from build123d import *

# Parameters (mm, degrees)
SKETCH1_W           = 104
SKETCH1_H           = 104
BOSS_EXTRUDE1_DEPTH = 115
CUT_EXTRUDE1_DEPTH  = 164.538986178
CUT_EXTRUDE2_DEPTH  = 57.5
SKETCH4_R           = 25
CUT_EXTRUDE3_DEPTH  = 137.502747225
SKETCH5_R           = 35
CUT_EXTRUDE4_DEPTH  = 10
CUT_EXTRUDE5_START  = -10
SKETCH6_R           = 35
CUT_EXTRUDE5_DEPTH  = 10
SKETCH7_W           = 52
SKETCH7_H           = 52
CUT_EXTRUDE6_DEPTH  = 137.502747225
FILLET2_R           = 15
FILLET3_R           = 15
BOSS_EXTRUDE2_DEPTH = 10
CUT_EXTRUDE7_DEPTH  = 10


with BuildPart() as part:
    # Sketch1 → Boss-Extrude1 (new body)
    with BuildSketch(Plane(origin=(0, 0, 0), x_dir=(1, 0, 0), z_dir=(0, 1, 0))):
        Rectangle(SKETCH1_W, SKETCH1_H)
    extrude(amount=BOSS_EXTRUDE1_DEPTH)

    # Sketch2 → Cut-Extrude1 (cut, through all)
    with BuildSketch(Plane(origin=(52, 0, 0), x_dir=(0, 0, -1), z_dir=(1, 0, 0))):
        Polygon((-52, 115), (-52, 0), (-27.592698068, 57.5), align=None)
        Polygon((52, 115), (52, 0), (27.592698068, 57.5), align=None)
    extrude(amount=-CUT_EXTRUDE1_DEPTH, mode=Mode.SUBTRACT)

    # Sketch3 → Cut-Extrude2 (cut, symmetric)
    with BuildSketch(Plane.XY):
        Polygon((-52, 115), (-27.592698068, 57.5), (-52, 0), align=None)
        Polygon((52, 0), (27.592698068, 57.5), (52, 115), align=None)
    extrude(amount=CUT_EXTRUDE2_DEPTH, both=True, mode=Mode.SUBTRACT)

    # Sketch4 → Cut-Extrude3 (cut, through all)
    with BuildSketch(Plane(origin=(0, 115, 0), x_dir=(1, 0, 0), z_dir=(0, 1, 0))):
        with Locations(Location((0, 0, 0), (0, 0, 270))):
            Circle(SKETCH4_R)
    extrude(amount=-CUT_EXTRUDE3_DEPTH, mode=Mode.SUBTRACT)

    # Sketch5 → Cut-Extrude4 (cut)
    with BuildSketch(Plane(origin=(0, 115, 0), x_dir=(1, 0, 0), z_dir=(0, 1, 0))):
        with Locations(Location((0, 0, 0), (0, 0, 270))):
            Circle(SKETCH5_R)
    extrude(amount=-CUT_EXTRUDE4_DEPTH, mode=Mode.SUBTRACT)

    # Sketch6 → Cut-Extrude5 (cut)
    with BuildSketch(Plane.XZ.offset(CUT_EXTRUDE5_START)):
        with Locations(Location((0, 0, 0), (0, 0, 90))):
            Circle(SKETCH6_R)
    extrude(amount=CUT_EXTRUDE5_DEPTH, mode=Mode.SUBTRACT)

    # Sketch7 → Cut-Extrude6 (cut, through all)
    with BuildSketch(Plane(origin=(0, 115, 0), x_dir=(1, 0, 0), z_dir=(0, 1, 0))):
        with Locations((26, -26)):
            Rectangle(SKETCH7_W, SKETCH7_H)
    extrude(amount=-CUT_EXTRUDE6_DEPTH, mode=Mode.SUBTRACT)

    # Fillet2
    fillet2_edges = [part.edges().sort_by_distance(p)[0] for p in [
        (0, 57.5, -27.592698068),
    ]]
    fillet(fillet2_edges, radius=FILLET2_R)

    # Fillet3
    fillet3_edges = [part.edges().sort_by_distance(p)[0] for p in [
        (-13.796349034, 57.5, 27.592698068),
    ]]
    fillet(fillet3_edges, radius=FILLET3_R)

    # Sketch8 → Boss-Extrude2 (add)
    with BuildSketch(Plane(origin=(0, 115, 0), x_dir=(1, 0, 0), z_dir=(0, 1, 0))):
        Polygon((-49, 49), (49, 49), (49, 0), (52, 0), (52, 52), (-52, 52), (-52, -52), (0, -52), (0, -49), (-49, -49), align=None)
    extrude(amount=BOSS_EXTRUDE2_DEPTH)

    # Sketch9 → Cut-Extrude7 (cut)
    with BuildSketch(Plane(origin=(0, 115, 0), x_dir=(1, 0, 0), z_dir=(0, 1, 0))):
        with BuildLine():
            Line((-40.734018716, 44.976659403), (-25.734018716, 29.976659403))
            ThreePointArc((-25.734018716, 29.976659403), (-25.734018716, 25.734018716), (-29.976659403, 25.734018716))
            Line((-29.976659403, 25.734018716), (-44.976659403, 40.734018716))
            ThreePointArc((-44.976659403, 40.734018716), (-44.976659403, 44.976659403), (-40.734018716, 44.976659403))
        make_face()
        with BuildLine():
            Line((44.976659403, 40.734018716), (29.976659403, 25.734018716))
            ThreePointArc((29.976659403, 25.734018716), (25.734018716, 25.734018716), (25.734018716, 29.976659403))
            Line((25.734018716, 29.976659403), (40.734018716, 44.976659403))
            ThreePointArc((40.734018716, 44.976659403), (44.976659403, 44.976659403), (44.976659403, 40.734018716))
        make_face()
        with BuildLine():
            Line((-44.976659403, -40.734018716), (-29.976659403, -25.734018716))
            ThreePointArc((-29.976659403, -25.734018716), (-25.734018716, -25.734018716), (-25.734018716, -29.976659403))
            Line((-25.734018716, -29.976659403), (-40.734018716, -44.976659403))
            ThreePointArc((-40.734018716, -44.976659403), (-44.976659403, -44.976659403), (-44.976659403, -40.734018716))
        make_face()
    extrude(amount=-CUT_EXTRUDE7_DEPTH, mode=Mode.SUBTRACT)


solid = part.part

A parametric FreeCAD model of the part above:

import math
import FreeCAD as App
import Part
import Sketcher
Q = App.Units.Quantity


def edges_at(feature, points):
    """Names of the edges that pass closest to the given points."""
    edges = feature.Shape.Edges
    near = lambda p: min(range(len(edges)), key=lambda i: edges[i].distToShape(Part.Vertex(*p))[0])
    return sorted({f"Edge{near(p) + 1}" for p in points})

doc = App.newDocument("Part")
params = doc.addObject("Spreadsheet::Sheet", "Params")
for row, (alias, value) in enumerate([
    ("sketch1_width", "104 mm"),
    ("pad1_length", "115 mm"),
    ("sketch2_width", "115 mm"),
    ("sketch3_height", "115 mm"),
    ("pocket2_length", "115 mm"),
    ("sketch4_diameter", "50 mm"),
    ("sketch5_diameter", "70 mm"),
    ("pocket4_length", "10 mm"),
    ("sketch6_diameter", "70 mm"),
    ("pocket5_length", "10 mm"),
    ("sketch7_width", "52 mm"),
    ("fillet_radius", "15 mm"),
    ("fillet2_radius", "15 mm"),
    ("sketch8_width", "98 mm"),
    ("sketch8_width2", "3 mm"),
    ("pad2_length", "10 mm"),
    ("sketch9_radius", "3 mm"),
    ("pocket7_length", "10 mm"),
], start=1):
    params.set(f"A{row}", alias)
    params.set(f"B{row}", "=" + value)
    params.setAlias(f"B{row}", alias)

body = doc.addObject("PartDesign::Body", "Body")

# Sketch on XZ plane
sketch1 = doc.addObject("Sketcher::SketchObject", "Sketch")
body.addObject(sketch1)
sketch1.AttachmentSupport = (doc.XZ_Plane, [""])
sketch1.MapMode = "FlatFace"
sketch1.addGeometry([
    Part.LineSegment(App.Vector(-52, -52, 0), App.Vector(-52, 52, 0)),
    Part.LineSegment(App.Vector(-52, 52, 0), App.Vector(52, 52, 0)),
    Part.LineSegment(App.Vector(52, 52, 0), App.Vector(52, -52, 0)),
    Part.LineSegment(App.Vector(52, -52, 0), App.Vector(-52, -52, 0)),
], False)
sketch1.addConstraint([
    Sketcher.Constraint("Coincident", 0, 2, 1, 1),
    Sketcher.Constraint("Coincident", 1, 2, 2, 1),
    Sketcher.Constraint("Coincident", 2, 2, 3, 1),
    Sketcher.Constraint("Coincident", 3, 2, 0, 1),
    Sketcher.Constraint("Vertical", 0),
    Sketcher.Constraint("Horizontal", 1),
    Sketcher.Constraint("Vertical", 2),
    Sketcher.Constraint("Horizontal", 3),
    Sketcher.Constraint("Symmetric", 0, 2, 2, 2, -1, 1),
    Sketcher.Constraint("Equal", 3, 0),
    Sketcher.Constraint("DistanceX", 1, 1, 1, 2, 104.0),
])
sketch1.setExpression("Constraints[10]", "Params.sketch1_width")
pad1 = doc.addObject("PartDesign::Pad", "Pad")
body.addObject(pad1)
pad1.Profile = sketch1
pad1.setExpression("Length", "Params.pad1_length")
pad1.Reversed = True

# Sketch on YZ plane
sketch2 = doc.addObject("Sketcher::SketchObject", "Sketch001")
body.addObject(sketch2)
sketch2.AttachmentSupport = (doc.YZ_Plane, [""])
sketch2.MapMode = "FlatFace"
sketch2.AttachmentOffset = App.Placement(App.Vector(0, 0, 52), App.Rotation())
sketch2.addGeometry([
    Part.LineSegment(App.Vector(115, 52, 0), App.Vector(0, 52, 0)),  # 0
    Part.LineSegment(App.Vector(0, 52, 0), App.Vector(58, 28, 0)),  # 1
    Part.LineSegment(App.Vector(58, 28, 0), App.Vector(115, 52, 0)),  # 2
    Part.LineSegment(App.Vector(0, -52, 0), App.Vector(115, -52, 0)),  # 3
    Part.LineSegment(App.Vector(115, -52, 0), App.Vector(58, -28, 0)),  # 4
    Part.LineSegment(App.Vector(58, -28, 0), App.Vector(0, -52, 0)),  # 5
], False)
sketch2.addConstraint([
    Sketcher.Constraint("Coincident", 0, 2, 1, 1),
    Sketcher.Constraint("Coincident", 1, 2, 2, 1),
    Sketcher.Constraint("Coincident", 2, 2, 0, 1),
    Sketcher.Constraint("Coincident", 3, 2, 4, 1),
    Sketcher.Constraint("Coincident", 4, 2, 5, 1),
    Sketcher.Constraint("Coincident", 5, 2, 3, 1),
    Sketcher.Constraint("Horizontal", 0),
    Sketcher.Constraint("Horizontal", 3),
    Sketcher.Constraint("Symmetric", 0, 2, 5, 2, -1, 1),
    Sketcher.Constraint("Symmetric", 1, 2, 4, 2, -1),
    Sketcher.Constraint("PointOnObject", 0, 2, -2),
    Sketcher.Constraint("Parallel", 1, 4),
    Sketcher.Constraint("Parallel", 2, 5),
    Sketcher.Constraint("DistanceX", 0, 2, 0, 1, 115.0),
    Sketcher.Constraint("Angle", 1, Q("-23 deg")),
    Sketcher.Constraint("DistanceY", -1, 1, 0, 2, 52.0),
])
sketch2.setExpression("Constraints[13]", "Params.sketch2_width")
pocket1 = doc.addObject("PartDesign::Pocket", "Pocket")
body.addObject(pocket1)
pocket1.Profile = sketch2
pocket1.Type = "ThroughAll"

# Sketch on XY plane
sketch3 = doc.addObject("Sketcher::SketchObject", "Sketch002")
body.addObject(sketch3)
sketch3.AttachmentSupport = (doc.XY_Plane, [""])
sketch3.MapMode = "FlatFace"
sketch3.addGeometry([
    Part.LineSegment(App.Vector(-28, 58, 0), App.Vector(-52, 115, 0)),  # 0
    Part.LineSegment(App.Vector(-52, 115, 0), App.Vector(-52, 0, 0)),  # 1
    Part.LineSegment(App.Vector(-52, 0, 0), App.Vector(-28, 58, 0)),  # 2
    Part.LineSegment(App.Vector(28, 58, 0), App.Vector(52, 0, 0)),  # 3
    Part.LineSegment(App.Vector(52, 0, 0), App.Vector(52, 115, 0)),  # 4
    Part.LineSegment(App.Vector(52, 115, 0), App.Vector(28, 58, 0)),  # 5
], False)
sketch3.addConstraint([
    Sketcher.Constraint("Coincident", 0, 2, 1, 1),
    Sketcher.Constraint("Coincident", 1, 2, 2, 1),
    Sketcher.Constraint("Coincident", 2, 2, 0, 1),
    Sketcher.Constraint("Coincident", 3, 2, 4, 1),
    Sketcher.Constraint("Coincident", 4, 2, 5, 1),
    Sketcher.Constraint("Coincident", 5, 2, 3, 1),
    Sketcher.Constraint("Vertical", 1),
    Sketcher.Constraint("Vertical", 4),
    Sketcher.Constraint("Symmetric", 1, 2, 3, 2, -1, 1),
    Sketcher.Constraint("Symmetric", 2, 2, 5, 2, -2),
    Sketcher.Constraint("PointOnObject", 1, 2, -1),
    Sketcher.Constraint("Parallel", 0, 3),
    Sketcher.Constraint("Parallel", 2, 5),
    Sketcher.Constraint("DistanceY", 1, 2, 1, 1, 115.0),
    Sketcher.Constraint("Angle", 0, Q("113 deg")),
    Sketcher.Constraint("DistanceX", 0, 2, -1, 1, 52.0),
])
sketch3.setExpression("Constraints[13]", "Params.sketch3_height")
pocket2 = doc.addObject("PartDesign::Pocket", "Pocket001")
body.addObject(pocket2)
pocket2.Profile = sketch3
pocket2.setExpression("Length", "Params.pocket2_length")
pocket2.Midplane = True

# Sketch on XZ plane
sketch4 = doc.addObject("Sketcher::SketchObject", "Sketch003")
body.addObject(sketch4)
sketch4.AttachmentSupport = (doc.XZ_Plane, [""])
sketch4.MapMode = "FlatFace"
sketch4.AttachmentOffset = App.Placement(App.Vector(0, 0, -115), App.Rotation())
sketch4.addGeometry(Part.Circle(App.Vector(0, 0, 0), App.Vector(0, 0, 1), 25), False)
sketch4.addConstraint([
    Sketcher.Constraint("Coincident", 0, 3, -1, 1),
    Sketcher.Constraint("Diameter", 0, 50.0),
])
sketch4.setExpression("Constraints[1]", "Params.sketch4_diameter")
pocket3 = doc.addObject("PartDesign::Pocket", "Pocket002")
body.addObject(pocket3)
pocket3.Profile = sketch4
pocket3.Type = "ThroughAll"
pocket3.Reversed = True

# Sketch on XZ plane
sketch5 = doc.addObject("Sketcher::SketchObject", "Sketch004")
body.addObject(sketch5)
sketch5.AttachmentSupport = (doc.XZ_Plane, [""])
sketch5.MapMode = "FlatFace"
sketch5.AttachmentOffset = App.Placement(App.Vector(0, 0, -115), App.Rotation())
sketch5.addGeometry(Part.Circle(App.Vector(0, 0, 0), App.Vector(0, 0, 1), 35), False)
sketch5.addConstraint([
    Sketcher.Constraint("Coincident", 0, 3, -1, 1),
    Sketcher.Constraint("Diameter", 0, 70.0),
])
sketch5.setExpression("Constraints[1]", "Params.sketch5_diameter")
pocket4 = doc.addObject("PartDesign::Pocket", "Pocket003")
body.addObject(pocket4)
pocket4.Profile = sketch5
pocket4.setExpression("Length", "Params.pocket4_length")
pocket4.Reversed = True

# Sketch on XZ plane
sketch6 = doc.addObject("Sketcher::SketchObject", "Sketch005")
body.addObject(sketch6)
sketch6.AttachmentSupport = (doc.XZ_Plane, [""])
sketch6.MapMode = "FlatFace"
sketch6.AttachmentOffset = App.Placement(App.Vector(0, 0, -10), App.Rotation())
sketch6.addGeometry(Part.Circle(App.Vector(0, 0, 0), App.Vector(0, 0, 1), 35), False)
sketch6.addConstraint([
    Sketcher.Constraint("Coincident", 0, 3, -1, 1),
    Sketcher.Constraint("Diameter", 0, 70.0),
])
sketch6.setExpression("Constraints[1]", "Params.sketch6_diameter")
pocket5 = doc.addObject("PartDesign::Pocket", "Pocket004")
body.addObject(pocket5)
pocket5.Profile = sketch6
pocket5.setExpression("Length", "Params.pocket5_length")
pocket5.Reversed = True

# Sketch on XZ plane
sketch7 = doc.addObject("Sketcher::SketchObject", "Sketch006")
body.addObject(sketch7)
sketch7.AttachmentSupport = (doc.XZ_Plane, [""])
sketch7.MapMode = "FlatFace"
sketch7.AttachmentOffset = App.Placement(App.Vector(0, 0, -115), App.Rotation())
sketch7.addGeometry([
    Part.LineSegment(App.Vector(0, 0, 0), App.Vector(0, 52, 0)),
    Part.LineSegment(App.Vector(0, 52, 0), App.Vector(52, 52, 0)),
    Part.LineSegment(App.Vector(52, 52, 0), App.Vector(52, 0, 0)),
    Part.LineSegment(App.Vector(52, 0, 0), App.Vector(0, 0, 0)),
], False)
sketch7.addConstraint([
    Sketcher.Constraint("Coincident", 0, 2, 1, 1),
    Sketcher.Constraint("Coincident", 1, 2, 2, 1),
    Sketcher.Constraint("Coincident", 2, 2, 3, 1),
    Sketcher.Constraint("Coincident", 3, 2, 0, 1),
    Sketcher.Constraint("Vertical", 0),
    Sketcher.Constraint("Horizontal", 1),
    Sketcher.Constraint("Vertical", 2),
    Sketcher.Constraint("Horizontal", 3),
    Sketcher.Constraint("Coincident", 3, 2, -1, 1),
    Sketcher.Constraint("Equal", 3, 0),
    Sketcher.Constraint("DistanceX", 1, 1, 1, 2, 52.0),
])
sketch7.setExpression("Constraints[10]", "Params.sketch7_width")
pocket6 = doc.addObject("PartDesign::Pocket", "Pocket005")
body.addObject(pocket6)
pocket6.Profile = sketch7
pocket6.Type = "ThroughAll"
pocket6.Reversed = True
doc.recompute()

fillet = doc.addObject("PartDesign::Fillet", "Fillet")
body.addObject(fillet)
fillet.Base = (pocket6, edges_at(pocket6, [(0, 57.5, -27.593)]))
fillet.setExpression("Radius", "Params.fillet_radius")
doc.recompute()

fillet2 = doc.addObject("PartDesign::Fillet", "Fillet001")
body.addObject(fillet2)
fillet2.Base = (fillet, edges_at(fillet, [(-13.796, 57.5, 27.593)]))
fillet2.setExpression("Radius", "Params.fillet2_radius")

# Sketch on XZ plane
sketch8 = doc.addObject("Sketcher::SketchObject", "Sketch007")
body.addObject(sketch8)
sketch8.AttachmentSupport = (doc.XZ_Plane, [""])
sketch8.MapMode = "FlatFace"
sketch8.AttachmentOffset = App.Placement(App.Vector(0, 0, -115), App.Rotation())
sketch8.addGeometry([
    Part.LineSegment(App.Vector(-49, -49, 0), App.Vector(49, -49, 0)),  # 0
    Part.LineSegment(App.Vector(49, -49, 0), App.Vector(49, 0, 0)),  # 1
    Part.LineSegment(App.Vector(49, 0, 0), App.Vector(52, 0, 0)),  # 2
    Part.LineSegment(App.Vector(52, 0, 0), App.Vector(52, -52, 0)),  # 3
    Part.LineSegment(App.Vector(52, -52, 0), App.Vector(-52, -52, 0)),  # 4
    Part.LineSegment(App.Vector(-52, -52, 0), App.Vector(-52, 52, 0)),  # 5
    Part.LineSegment(App.Vector(-52, 52, 0), App.Vector(0, 52, 0)),  # 6
    Part.LineSegment(App.Vector(0, 52, 0), App.Vector(0, 49, 0)),  # 7
    Part.LineSegment(App.Vector(0, 49, 0), App.Vector(-49, 49, 0)),  # 8
    Part.LineSegment(App.Vector(-49, 49, 0), App.Vector(-49, -49, 0)),  # 9
], False)
sketch8.addConstraint([
    Sketcher.Constraint("Coincident", 0, 2, 1, 1),
    Sketcher.Constraint("Coincident", 1, 2, 2, 1),
    Sketcher.Constraint("Coincident", 2, 2, 3, 1),
    Sketcher.Constraint("Coincident", 3, 2, 4, 1),
    Sketcher.Constraint("Coincident", 4, 2, 5, 1),
    Sketcher.Constraint("Coincident", 5, 2, 6, 1),
    Sketcher.Constraint("Coincident", 6, 2, 7, 1),
    Sketcher.Constraint("Coincident", 7, 2, 8, 1),
    Sketcher.Constraint("Coincident", 8, 2, 9, 1),
    Sketcher.Constraint("Coincident", 9, 2, 0, 1),
    Sketcher.Constraint("Horizontal", 0),
    Sketcher.Constraint("Vertical", 1),
    Sketcher.Constraint("Horizontal", 2),
    Sketcher.Constraint("Vertical", 3),
    Sketcher.Constraint("Horizontal", 4),
    Sketcher.Constraint("Vertical", 5),
    Sketcher.Constraint("Horizontal", 6),
    Sketcher.Constraint("Vertical", 7),
    Sketcher.Constraint("Horizontal", 8),
    Sketcher.Constraint("Vertical", 9),
    Sketcher.Constraint("Symmetric", 3, 2, 5, 2, -1, 1),
    Sketcher.Constraint("Symmetric", 0, 2, 8, 2, -1, 1),
    Sketcher.Constraint("PointOnObject", 1, 2, -1),
    Sketcher.Constraint("PointOnObject", 6, 2, -2),
    Sketcher.Constraint("Equal", 8, 1),
    Sketcher.Constraint("Equal", 6, 3),
    Sketcher.Constraint("DistanceX", 0, 1, 0, 2, 98.0),
    Sketcher.Constraint("DistanceX", 2, 1, 2, 2, 3.0),
])
sketch8.setExpression("Constraints[26]", "Params.sketch8_width")
sketch8.setExpression("Constraints[27]", "Params.sketch8_width2")
pad2 = doc.addObject("PartDesign::Pad", "Pad001")
body.addObject(pad2)
pad2.Profile = sketch8
pad2.setExpression("Length", "Params.pad2_length")
pad2.Reversed = True

# Sketch on XZ plane
sketch9 = doc.addObject("Sketcher::SketchObject", "Sketch008")
body.addObject(sketch9)
sketch9.AttachmentSupport = (doc.XZ_Plane, [""])
sketch9.MapMode = "FlatFace"
sketch9.AttachmentOffset = App.Placement(App.Vector(0, 0, -115), App.Rotation())
sketch9.addGeometry([
    Part.LineSegment(App.Vector(-25.7, -30, 0), App.Vector(-40.7, -45, 0)),  # 0
    Part.ArcOfCircle(Part.Circle(App.Vector(-42.9, -42.9, 0), App.Vector(0, 0, 1), 3), math.radians(135), math.radians(315)),  # 1
    Part.LineSegment(App.Vector(-45, -40.7, 0), App.Vector(-30, -25.7, 0)),  # 2
    Part.ArcOfCircle(Part.Circle(App.Vector(-27.9, -27.9, 0), App.Vector(0, 0, 1), 3), math.radians(-45), math.radians(135)),  # 3
    Part.LineSegment(App.Vector(30, -25.7, 0), App.Vector(45, -40.7, 0)),  # 4
    Part.ArcOfCircle(Part.Circle(App.Vector(42.9, -42.9, 0), App.Vector(0, 0, 1), 3), math.radians(-135), math.radians(45)),  # 5
    Part.LineSegment(App.Vector(40.7, -45, 0), App.Vector(25.7, -30, 0)),  # 6
    Part.ArcOfCircle(Part.Circle(App.Vector(27.9, -27.9, 0), App.Vector(0, 0, 1), 3), math.radians(45), math.radians(225)),  # 7
    Part.LineSegment(App.Vector(-30, 25.7, 0), App.Vector(-45, 40.7, 0)),  # 8
    Part.ArcOfCircle(Part.Circle(App.Vector(-42.9, 42.9, 0), App.Vector(0, 0, 1), 3), math.radians(45), math.radians(225)),  # 9
    Part.LineSegment(App.Vector(-40.7, 45, 0), App.Vector(-25.7, 30, 0)),  # 10
    Part.ArcOfCircle(Part.Circle(App.Vector(-27.9, 27.9, 0), App.Vector(0, 0, 1), 3), math.radians(-135), math.radians(45)),  # 11
], False)
sketch9.addConstraint([
    Sketcher.Constraint("Tangent", 0, 2, 1, 2),
    Sketcher.Constraint("Tangent", 1, 1, 2, 1),
    Sketcher.Constraint("Tangent", 2, 2, 3, 2),
    Sketcher.Constraint("Tangent", 3, 1, 0, 1),
    Sketcher.Constraint("Tangent", 4, 2, 5, 2),
    Sketcher.Constraint("Tangent", 5, 1, 6, 1),
    Sketcher.Constraint("Tangent", 6, 2, 7, 2),
    Sketcher.Constraint("Tangent", 7, 1, 4, 1),
    Sketcher.Constraint("Tangent", 8, 2, 9, 2),
    Sketcher.Constraint("Tangent", 9, 1, 10, 1),
    Sketcher.Constraint("Tangent", 10, 2, 11, 2),
    Sketcher.Constraint("Tangent", 11, 1, 8, 1),
    Sketcher.Constraint("Equal", 1, 3),
    Sketcher.Constraint("Equal", 3, 5),
    Sketcher.Constraint("Equal", 5, 7),
    Sketcher.Constraint("Equal", 7, 9),
    Sketcher.Constraint("Equal", 9, 11),
    Sketcher.Constraint("Symmetric", 5, 3, 9, 3, -1, 1),
    Sketcher.Constraint("Symmetric", 7, 3, 11, 3, -1, 1),
    Sketcher.Constraint("Symmetric", 1, 3, 5, 3, -2),
    Sketcher.Constraint("Symmetric", 3, 3, 7, 3, -2),
    Sketcher.Constraint("Perpendicular", 2, 4),
    Sketcher.Constraint("Radius", 1, 3.0),
    Sketcher.Constraint("DistanceX", 1, 3, 3, 3, 15.0),
    Sketcher.Constraint("DistanceY", 0, 2, 11, 3, 72.831998),
    Sketcher.Constraint("DistanceX", 1, 1, 7, 3, 72.831998),
])
sketch9.setExpression("Constraints[22]", "Params.sketch9_radius")
pocket7 = doc.addObject("PartDesign::Pocket", "Pocket006")
body.addObject(pocket7)
pocket7.Profile = sketch9
pocket7.setExpression("Length", "Params.pocket7_length")
pocket7.Reversed = True

doc.recompute()
